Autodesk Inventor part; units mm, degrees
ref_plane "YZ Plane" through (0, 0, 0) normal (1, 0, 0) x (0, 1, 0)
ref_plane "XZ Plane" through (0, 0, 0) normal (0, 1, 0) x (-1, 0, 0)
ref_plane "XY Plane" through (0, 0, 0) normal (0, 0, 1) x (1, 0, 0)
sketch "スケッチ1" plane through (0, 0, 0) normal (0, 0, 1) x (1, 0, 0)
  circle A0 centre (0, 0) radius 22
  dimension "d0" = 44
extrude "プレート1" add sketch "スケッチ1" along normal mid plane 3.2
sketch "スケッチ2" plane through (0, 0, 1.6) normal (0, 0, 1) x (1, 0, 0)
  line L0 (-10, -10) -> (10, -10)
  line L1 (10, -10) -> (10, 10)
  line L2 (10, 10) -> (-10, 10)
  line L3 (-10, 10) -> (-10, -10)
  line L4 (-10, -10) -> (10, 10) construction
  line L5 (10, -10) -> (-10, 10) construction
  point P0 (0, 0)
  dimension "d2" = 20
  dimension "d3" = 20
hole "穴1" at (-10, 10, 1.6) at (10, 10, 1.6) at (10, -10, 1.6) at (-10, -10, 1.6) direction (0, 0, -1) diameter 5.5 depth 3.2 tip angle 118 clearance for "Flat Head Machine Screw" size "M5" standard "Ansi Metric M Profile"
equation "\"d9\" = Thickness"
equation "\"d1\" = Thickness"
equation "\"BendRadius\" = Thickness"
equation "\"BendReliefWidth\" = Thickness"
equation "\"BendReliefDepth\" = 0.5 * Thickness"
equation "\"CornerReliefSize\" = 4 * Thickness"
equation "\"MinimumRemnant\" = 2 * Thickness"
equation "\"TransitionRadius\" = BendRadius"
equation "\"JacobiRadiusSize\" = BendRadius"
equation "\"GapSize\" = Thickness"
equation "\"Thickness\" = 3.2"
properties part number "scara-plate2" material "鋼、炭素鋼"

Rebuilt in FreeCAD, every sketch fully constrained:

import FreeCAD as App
import Part
import Sketcher

V = App.Vector

doc = App.newDocument("Part")
body = doc.addObject("PartDesign::Body", "Body")

# Sketch on XY plane
sketch1 = body.newObject("Sketcher::SketchObject", "Sketch")
sketch1.AttachmentSupport = (doc.getObject("XY_Plane"), [""])
sketch1.MapMode = "FlatFace"
sketch1.addGeometry(Part.Circle(V(0, 0, 0), V(0, 0, 1), 22), False)
sketch1.addConstraint([
    Sketcher.Constraint("Coincident", 0, 3, -1, 1),
    Sketcher.Constraint("Diameter", 0, 44.0),
])
pad1 = body.newObject("PartDesign::Pad", "Pad")
pad1.Profile = sketch1
pad1.Length = 3.2
pad1.Midplane = True

# Sketch on XY plane
sketch2 = body.newObject("Sketcher::SketchObject", "Sketch001")
sketch2.AttachmentSupport = (doc.getObject("XY_Plane"), [""])
sketch2.MapMode = "FlatFace"
sketch2.AttachmentOffset = App.Placement(V(0, 0, 1.6), App.Rotation())
sketch2.addGeometry([
    Part.Circle(V(-10, 10, 0), V(0, 0, 1), 2.8),
    Part.Circle(V(10, 10, 0), V(0, 0, 1), 2.8),
    Part.Circle(V(10, -10, 0), V(0, 0, 1), 2.8),
    Part.Circle(V(-10, -10, 0), V(0, 0, 1), 2.8),
], False)
sketch2.addConstraint([
    Sketcher.Constraint("Equal", 0, 1),
    Sketcher.Constraint("Equal", 1, 2),
    Sketcher.Constraint("Equal", 2, 3),
    Sketcher.Constraint("Symmetric", 0, 3, 2, 3, -1, 1),
    Sketcher.Constraint("Symmetric", 1, 3, 3, 3, -1, 1),
    Sketcher.Constraint("Symmetric", 0, 3, 1, 3, -2),
    Sketcher.Constraint("Diameter", 0, 5.5),
    Sketcher.Constraint("DistanceX", 0, 3, -1, 1, 10.0),
    Sketcher.Constraint("DistanceY", -1, 1, 0, 3, 10.0),
])
doc.recompute()
hole = body.newObject("PartDesign::Hole", "Hole")
hole.Profile = sketch2
hole.ThreadType = "None"
hole.Diameter = 5.5
hole.DepthType = "Dimension"
hole.Depth = 3.2
hole.DrillPoint = "Angled"
hole.DrillPointAngle = 118

doc.recompute()
